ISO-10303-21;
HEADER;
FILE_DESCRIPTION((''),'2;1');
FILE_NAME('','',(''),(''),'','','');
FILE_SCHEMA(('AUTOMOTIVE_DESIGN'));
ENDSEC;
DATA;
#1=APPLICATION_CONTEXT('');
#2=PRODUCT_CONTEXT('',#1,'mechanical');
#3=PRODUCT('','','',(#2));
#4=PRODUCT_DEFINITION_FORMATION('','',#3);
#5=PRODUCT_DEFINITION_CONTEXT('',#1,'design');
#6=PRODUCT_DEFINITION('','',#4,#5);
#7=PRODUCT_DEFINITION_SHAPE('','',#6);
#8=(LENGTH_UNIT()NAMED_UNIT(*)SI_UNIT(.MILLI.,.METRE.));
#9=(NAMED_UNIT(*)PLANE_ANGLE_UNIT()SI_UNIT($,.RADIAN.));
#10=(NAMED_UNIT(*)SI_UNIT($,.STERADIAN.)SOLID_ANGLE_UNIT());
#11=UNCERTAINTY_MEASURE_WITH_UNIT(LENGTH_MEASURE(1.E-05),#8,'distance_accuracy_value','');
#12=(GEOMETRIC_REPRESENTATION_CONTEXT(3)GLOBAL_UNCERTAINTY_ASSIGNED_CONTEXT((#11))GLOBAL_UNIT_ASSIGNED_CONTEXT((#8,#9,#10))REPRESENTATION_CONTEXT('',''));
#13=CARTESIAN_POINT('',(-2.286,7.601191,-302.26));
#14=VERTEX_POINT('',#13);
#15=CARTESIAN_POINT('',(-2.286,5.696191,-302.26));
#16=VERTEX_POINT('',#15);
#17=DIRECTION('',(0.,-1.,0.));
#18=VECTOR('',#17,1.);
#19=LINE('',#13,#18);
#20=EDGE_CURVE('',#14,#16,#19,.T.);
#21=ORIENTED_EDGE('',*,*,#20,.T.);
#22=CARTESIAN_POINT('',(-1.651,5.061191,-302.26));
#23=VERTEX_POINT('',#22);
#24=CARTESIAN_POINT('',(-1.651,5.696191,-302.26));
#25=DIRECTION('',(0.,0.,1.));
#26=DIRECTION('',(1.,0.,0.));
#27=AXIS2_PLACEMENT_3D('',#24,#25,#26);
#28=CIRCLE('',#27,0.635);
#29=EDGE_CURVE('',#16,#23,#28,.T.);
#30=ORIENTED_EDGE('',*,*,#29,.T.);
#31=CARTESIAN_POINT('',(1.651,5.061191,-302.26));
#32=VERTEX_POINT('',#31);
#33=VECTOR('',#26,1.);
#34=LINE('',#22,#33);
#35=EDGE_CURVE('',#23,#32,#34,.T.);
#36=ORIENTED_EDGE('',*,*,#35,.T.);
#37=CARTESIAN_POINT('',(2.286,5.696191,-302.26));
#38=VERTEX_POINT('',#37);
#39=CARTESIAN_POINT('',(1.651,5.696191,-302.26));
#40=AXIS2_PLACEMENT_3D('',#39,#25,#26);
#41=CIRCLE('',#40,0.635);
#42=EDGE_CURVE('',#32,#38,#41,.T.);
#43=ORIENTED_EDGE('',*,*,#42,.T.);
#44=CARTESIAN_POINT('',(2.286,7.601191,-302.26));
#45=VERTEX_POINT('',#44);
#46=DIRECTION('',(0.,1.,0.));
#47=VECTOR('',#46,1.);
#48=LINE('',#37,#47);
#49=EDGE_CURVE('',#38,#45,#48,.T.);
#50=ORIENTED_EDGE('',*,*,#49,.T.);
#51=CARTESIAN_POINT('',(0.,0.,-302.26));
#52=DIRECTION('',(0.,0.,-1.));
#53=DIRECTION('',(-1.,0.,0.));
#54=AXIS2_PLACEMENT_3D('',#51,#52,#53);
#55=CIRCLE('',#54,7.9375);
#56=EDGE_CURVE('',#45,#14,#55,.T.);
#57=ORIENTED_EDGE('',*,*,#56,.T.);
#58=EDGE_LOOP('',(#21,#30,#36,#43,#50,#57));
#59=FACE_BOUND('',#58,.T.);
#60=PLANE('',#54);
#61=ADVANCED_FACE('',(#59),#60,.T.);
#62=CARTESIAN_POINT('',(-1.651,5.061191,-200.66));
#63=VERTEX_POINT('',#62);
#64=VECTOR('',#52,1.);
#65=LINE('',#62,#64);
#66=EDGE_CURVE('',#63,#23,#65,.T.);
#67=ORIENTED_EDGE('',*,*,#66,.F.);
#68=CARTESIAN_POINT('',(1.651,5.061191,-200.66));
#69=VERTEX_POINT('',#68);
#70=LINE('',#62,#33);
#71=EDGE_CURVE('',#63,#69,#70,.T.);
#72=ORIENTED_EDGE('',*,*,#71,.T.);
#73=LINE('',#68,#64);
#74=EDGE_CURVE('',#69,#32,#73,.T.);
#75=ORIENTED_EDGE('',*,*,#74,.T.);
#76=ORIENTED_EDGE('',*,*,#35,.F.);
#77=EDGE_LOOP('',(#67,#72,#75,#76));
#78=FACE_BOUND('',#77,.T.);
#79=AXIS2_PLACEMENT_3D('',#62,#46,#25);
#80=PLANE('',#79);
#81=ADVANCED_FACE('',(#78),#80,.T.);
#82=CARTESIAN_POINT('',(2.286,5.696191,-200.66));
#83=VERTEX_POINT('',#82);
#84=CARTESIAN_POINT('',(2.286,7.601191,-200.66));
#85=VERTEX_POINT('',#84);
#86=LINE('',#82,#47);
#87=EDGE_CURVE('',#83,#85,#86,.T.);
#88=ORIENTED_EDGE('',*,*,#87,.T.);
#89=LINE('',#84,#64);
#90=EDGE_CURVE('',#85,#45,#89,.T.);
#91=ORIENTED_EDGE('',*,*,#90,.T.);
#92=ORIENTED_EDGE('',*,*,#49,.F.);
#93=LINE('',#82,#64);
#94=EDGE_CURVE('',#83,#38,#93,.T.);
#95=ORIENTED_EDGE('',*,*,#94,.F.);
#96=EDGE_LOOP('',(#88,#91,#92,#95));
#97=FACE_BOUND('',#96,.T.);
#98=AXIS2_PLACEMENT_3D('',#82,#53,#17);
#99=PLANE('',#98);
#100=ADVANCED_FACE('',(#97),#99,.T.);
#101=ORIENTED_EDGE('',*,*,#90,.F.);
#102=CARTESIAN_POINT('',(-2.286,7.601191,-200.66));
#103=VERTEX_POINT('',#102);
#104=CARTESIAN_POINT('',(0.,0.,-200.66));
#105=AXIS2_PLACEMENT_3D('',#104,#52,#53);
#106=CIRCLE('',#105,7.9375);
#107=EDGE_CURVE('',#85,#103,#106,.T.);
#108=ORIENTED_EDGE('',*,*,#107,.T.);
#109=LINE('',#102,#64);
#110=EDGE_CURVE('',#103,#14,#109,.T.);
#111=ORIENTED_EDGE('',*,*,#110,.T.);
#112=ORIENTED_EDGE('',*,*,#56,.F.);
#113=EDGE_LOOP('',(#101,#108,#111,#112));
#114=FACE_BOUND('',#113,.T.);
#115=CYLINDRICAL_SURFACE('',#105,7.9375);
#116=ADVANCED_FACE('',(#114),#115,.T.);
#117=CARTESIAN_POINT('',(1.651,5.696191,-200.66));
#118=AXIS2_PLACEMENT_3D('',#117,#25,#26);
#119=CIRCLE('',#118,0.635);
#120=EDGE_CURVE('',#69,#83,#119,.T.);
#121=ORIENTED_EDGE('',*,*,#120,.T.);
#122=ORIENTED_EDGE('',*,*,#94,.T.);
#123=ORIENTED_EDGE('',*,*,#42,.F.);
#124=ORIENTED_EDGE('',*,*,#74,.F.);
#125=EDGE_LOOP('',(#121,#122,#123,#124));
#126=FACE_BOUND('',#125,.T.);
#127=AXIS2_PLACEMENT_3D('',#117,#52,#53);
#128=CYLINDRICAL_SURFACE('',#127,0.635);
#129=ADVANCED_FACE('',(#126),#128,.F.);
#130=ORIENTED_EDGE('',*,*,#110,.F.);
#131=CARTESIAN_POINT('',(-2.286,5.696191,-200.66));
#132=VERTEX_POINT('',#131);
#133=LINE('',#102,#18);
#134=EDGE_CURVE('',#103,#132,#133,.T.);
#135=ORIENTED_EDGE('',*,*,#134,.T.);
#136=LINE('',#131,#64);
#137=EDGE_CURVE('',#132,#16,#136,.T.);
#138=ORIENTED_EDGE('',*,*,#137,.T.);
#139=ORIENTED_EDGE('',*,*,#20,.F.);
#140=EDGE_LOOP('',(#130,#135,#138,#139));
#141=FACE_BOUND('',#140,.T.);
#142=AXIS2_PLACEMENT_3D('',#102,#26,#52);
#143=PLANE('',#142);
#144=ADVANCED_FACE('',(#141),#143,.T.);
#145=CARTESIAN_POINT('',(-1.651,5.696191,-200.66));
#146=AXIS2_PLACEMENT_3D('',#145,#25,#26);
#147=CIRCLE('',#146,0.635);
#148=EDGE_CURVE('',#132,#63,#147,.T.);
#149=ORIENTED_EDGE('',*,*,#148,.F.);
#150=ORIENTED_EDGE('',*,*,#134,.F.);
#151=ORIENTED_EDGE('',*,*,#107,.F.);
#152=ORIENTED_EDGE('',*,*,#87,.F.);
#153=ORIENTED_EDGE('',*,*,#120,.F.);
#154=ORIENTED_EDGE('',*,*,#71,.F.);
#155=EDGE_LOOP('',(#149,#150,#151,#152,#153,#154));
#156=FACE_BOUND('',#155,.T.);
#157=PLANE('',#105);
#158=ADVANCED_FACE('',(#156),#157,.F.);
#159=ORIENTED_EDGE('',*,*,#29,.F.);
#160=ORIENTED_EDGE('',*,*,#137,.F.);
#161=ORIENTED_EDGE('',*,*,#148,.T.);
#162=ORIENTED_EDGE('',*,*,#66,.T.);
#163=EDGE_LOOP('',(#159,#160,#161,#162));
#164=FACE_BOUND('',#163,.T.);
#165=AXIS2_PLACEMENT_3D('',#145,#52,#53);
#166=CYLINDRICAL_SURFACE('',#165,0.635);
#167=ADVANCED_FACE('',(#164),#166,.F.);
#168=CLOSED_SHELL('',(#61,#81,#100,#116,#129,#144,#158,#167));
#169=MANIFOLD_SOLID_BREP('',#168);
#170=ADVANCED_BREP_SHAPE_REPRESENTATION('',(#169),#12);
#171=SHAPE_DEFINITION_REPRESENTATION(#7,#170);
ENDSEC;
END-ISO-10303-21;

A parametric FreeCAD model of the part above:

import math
import FreeCAD as App
import Part
import Sketcher
from FreeCAD import Vector
Q = App.Units.Quantity

doc = App.newDocument("Part")
body = doc.addObject("PartDesign::Body", "Body")

# Sketch on XY plane
sketch1 = doc.addObject("Sketcher::SketchObject", "Sketch")
body.addObject(sketch1)
sketch1.AttachmentSupport = (doc.XY_Plane, [""])
sketch1.MapMode = "FlatFace"
sketch1.AttachmentOffset = App.Placement(Vector(0, 0, -11.9 * 25.4), App.Rotation())
sketch1.addGeometry([
    Part.LineSegment(Vector(-2.286, 7.601191, 0), Vector(-2.286, 5.696191, 0)),  # 0
    Part.ArcOfCircle(Part.Circle(Vector(-1.651, 5.696191, 0), Vector(0, 0, 1), 0.635), math.radians(180), math.radians(270)),  # 1
    Part.LineSegment(Vector(-1.651, 5.061191, 0), Vector(1.651, 5.061191, 0)),  # 2
    Part.ArcOfCircle(Part.Circle(Vector(1.651, 5.696191, 0), Vector(0, 0, 1), 0.635), math.radians(-90), math.radians(0)),  # 3
    Part.LineSegment(Vector(2.286, 5.696191, 0), Vector(2.286, 7.601191, 0)),  # 4
    Part.ArcOfCircle(Part.Circle(Vector(0, 0, 0), Vector(0, 0, 1), 7.9375), math.radians(106.738257), math.radians(433.261743)),  # 5
], False)
sketch1.addConstraint([
    Sketcher.Constraint("Tangent", 0, 2, 1, 1),
    Sketcher.Constraint("Tangent", 1, 2, 2, 1),
    Sketcher.Constraint("Tangent", 2, 2, 3, 1),
    Sketcher.Constraint("Tangent", 3, 2, 4, 1),
    Sketcher.Constraint("Coincident", 4, 2, 5, 2),
    Sketcher.Constraint("Coincident", 5, 1, 0, 1),
    Sketcher.Constraint("Vertical", 0),
    Sketcher.Constraint("Horizontal", 2),
    Sketcher.Constraint("Vertical", 4),
    Sketcher.Constraint("Coincident", 5, 3, -1, 1),
    Sketcher.Constraint("Equal", 1, 3),
    Sketcher.Constraint("Horizontal", 4, 2, 5, 1),
    Sketcher.Constraint("Radius", 1, Q("0.025 in")),
    Sketcher.Constraint("Radius", 5, Q("0.3125 in")),
    Sketcher.Constraint("DistanceX", 2, 1, 2, 2, Q("0.13 in")),
    Sketcher.Constraint("DistanceY", 2, 2, 4, 2, Q("0.1 in")),
])
pad1 = doc.addObject("PartDesign::Pad", "Pad")
body.addObject(pad1)
pad1.Profile = sketch1
pad1.Length = Q("4 in")

doc.recompute()
